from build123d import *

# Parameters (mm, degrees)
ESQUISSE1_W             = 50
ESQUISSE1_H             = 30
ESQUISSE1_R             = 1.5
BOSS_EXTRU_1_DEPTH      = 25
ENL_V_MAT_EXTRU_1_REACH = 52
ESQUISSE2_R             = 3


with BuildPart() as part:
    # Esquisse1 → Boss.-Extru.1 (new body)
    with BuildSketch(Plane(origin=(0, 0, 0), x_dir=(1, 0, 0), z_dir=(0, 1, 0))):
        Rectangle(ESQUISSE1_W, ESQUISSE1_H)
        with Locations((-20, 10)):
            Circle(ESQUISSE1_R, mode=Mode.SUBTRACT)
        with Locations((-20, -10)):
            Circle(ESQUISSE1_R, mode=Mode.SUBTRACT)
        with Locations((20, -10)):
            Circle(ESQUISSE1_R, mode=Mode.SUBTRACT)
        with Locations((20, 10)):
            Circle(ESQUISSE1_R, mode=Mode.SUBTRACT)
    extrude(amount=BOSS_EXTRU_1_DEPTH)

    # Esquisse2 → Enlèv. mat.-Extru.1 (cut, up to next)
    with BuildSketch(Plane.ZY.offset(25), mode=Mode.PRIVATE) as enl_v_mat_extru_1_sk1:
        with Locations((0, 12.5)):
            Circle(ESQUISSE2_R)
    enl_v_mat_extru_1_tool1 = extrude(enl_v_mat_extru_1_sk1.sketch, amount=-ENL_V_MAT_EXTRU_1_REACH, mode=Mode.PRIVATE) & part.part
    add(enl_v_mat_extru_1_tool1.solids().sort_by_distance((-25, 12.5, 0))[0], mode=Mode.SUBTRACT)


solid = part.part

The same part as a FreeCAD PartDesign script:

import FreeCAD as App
import Part
import Sketcher


def add_polygon(sketch, points):
    """Adds a closed chain of lines whose ends are joined by coincident constraints."""
    first, n = sketch.GeometryCount, len(points)
    for a, b in zip(points, points[1:] + points[:1]):
        sketch.addGeometry(Part.LineSegment(App.Vector(*a, 0), App.Vector(*b, 0)), False)
    for i in range(n):
        sketch.addConstraint(Sketcher.Constraint("Coincident", first + i, 2, first + (i + 1) % n, 1))

doc = App.newDocument("Part")
body = doc.addObject("PartDesign::Body", "Body")

# Sketch on XZ plane
sketch1 = body.newObject("Sketcher::SketchObject", "Sketch")
sketch1.AttachmentSupport = (doc.getObject("XZ_Plane"), [""])
sketch1.MapMode = "FlatFace"
add_polygon(sketch1, [(-25, -15), (-25, 15), (25, 15), (25, -15)])  # lines 0-3
sketch1.addGeometry(Part.Circle(App.Vector(-20, 10, 0), App.Vector(0, 0, 1), 1.5), False)  # 4
sketch1.addGeometry(Part.Circle(App.Vector(20, 10, 0), App.Vector(0, 0, 1), 1.5), False)  # 5
sketch1.addGeometry(Part.Circle(App.Vector(-20, -10, 0), App.Vector(0, 0, 1), 1.5), False)  # 6
sketch1.addGeometry(Part.Circle(App.Vector(20, -10, 0), App.Vector(0, 0, 1), 1.5), False)  # 7
sketch1.addConstraint([
    Sketcher.Constraint("Vertical", 0),
    Sketcher.Constraint("Horizontal", 1),
    Sketcher.Constraint("Vertical", 2),
    Sketcher.Constraint("Horizontal", 3),
    Sketcher.Constraint("Equal", 4, 5),
    Sketcher.Constraint("Equal", 5, 6),
    Sketcher.Constraint("Equal", 6, 7),
    Sketcher.Constraint("Symmetric", 5, 3, 6, 3, -1, 1),
    Sketcher.Constraint("Symmetric", 4, 3, 7, 3, -1, 1),
    Sketcher.Constraint("Symmetric", 0, 2, 2, 2, -1, 1),
    Sketcher.Constraint("Symmetric", 4, 3, 5, 3, -2),
    Sketcher.Constraint("Diameter", 4, 3.0),
    Sketcher.Constraint("DistanceX", 1, 1, 1, 2, 50.0),
    Sketcher.Constraint("DistanceY", 0, 1, 0, 2, 30.0),
    Sketcher.Constraint("DistanceX", 4, 3, -1, 1, 20.0),
    Sketcher.Constraint("DistanceY", -1, 1, 4, 3, 10.0),
])
pad1 = body.newObject("PartDesign::Pad", "Pad")
pad1.Profile = sketch1
pad1.Length = 25
pad1.Reversed = True

# Sketch on YZ plane
sketch2 = body.newObject("Sketcher::SketchObject", "Sketch001")
sketch2.AttachmentSupport = (doc.getObject("YZ_Plane"), [""])
sketch2.MapMode = "FlatFace"
sketch2.AttachmentOffset = App.Placement(App.Vector(0, 0, -25), App.Rotation())
sketch2.addGeometry(Part.Circle(App.Vector(12.5, 0, 0), App.Vector(0, 0, 1), 3), False)
sketch2.addConstraint([
    Sketcher.Constraint("PointOnObject", 0, 3, -1),
    Sketcher.Constraint("Diameter", 0, 6.0),
    Sketcher.Constraint("DistanceX", -1, 1, 0, 3, 12.5),
])
pocket1 = body.newObject("PartDesign::Pocket", "Pocket")
pocket1.Profile = sketch2
pocket1.Type = "UpToFirst"
pocket1.Reversed = True

doc.recompute()
